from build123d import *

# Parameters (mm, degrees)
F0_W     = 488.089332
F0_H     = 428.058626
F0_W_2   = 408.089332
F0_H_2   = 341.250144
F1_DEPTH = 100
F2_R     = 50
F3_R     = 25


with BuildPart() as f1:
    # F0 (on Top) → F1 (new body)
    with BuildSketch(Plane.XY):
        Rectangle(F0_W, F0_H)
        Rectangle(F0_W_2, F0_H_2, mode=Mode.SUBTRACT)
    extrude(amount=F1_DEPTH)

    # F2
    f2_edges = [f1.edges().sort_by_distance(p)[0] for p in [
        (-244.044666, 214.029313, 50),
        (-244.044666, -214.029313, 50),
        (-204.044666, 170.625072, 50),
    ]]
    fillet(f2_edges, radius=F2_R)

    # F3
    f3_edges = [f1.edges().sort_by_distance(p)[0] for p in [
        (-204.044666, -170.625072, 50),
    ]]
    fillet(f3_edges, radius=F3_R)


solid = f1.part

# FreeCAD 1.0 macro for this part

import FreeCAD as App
import Part
import Sketcher
Q = App.Units.Quantity


def edges_at(feature, points):
    """Names of the edges that pass closest to the given points."""
    edges = feature.Shape.Edges
    near = lambda p: min(range(len(edges)), key=lambda i: edges[i].distToShape(Part.Vertex(*p))[0])
    return sorted({f"Edge{near(p) + 1}" for p in points})

doc = App.newDocument("Part")
body = doc.addObject("PartDesign::Body", "Body")

sketch1 = body.newObject("Sketcher::SketchObject", "Sketch")
sketch1.AttachmentSupport = (doc.getObject("XY_Plane"), [""])
sketch1.MapMode = "FlatFace"
sketch1.addGeometry([
    Part.LineSegment(App.Vector(-244, 214, 0), App.Vector(-244, -214, 0)),
    Part.LineSegment(App.Vector(-244, -214, 0), App.Vector(244, -214, 0)),
    Part.LineSegment(App.Vector(244, -214, 0), App.Vector(244, 214, 0)),
    Part.LineSegment(App.Vector(244, 214, 0), App.Vector(-244, 214, 0)),
    Part.LineSegment(App.Vector(204, -171, 0), App.Vector(-204, -171, 0)),
    Part.LineSegment(App.Vector(-204, -171, 0), App.Vector(-204, 171, 0)),
    Part.LineSegment(App.Vector(-204, 171, 0), App.Vector(204, 171, 0)),
    Part.LineSegment(App.Vector(204, 171, 0), App.Vector(204, -171, 0)),
], False)
sketch1.addConstraint([
    Sketcher.Constraint("Coincident", 0, 2, 1, 1),
    Sketcher.Constraint("Coincident", 1, 2, 2, 1),
    Sketcher.Constraint("Coincident", 2, 2, 3, 1),
    Sketcher.Constraint("Coincident", 3, 2, 0, 1),
    Sketcher.Constraint("Coincident", 4, 2, 5, 1),
    Sketcher.Constraint("Coincident", 5, 2, 6, 1),
    Sketcher.Constraint("Coincident", 6, 2, 7, 1),
    Sketcher.Constraint("Coincident", 7, 2, 4, 1),
    Sketcher.Constraint("Vertical", 0),
    Sketcher.Constraint("Horizontal", 1),
    Sketcher.Constraint("Vertical", 2),
    Sketcher.Constraint("Horizontal", 3),
    Sketcher.Constraint("Horizontal", 4),
    Sketcher.Constraint("Vertical", 5),
    Sketcher.Constraint("Horizontal", 6),
    Sketcher.Constraint("Vertical", 7),
    Sketcher.Constraint("Symmetric", 0, 2, 2, 2, -1, 1),
    Sketcher.Constraint("Symmetric", 4, 2, 6, 2, -1, 1),
    Sketcher.Constraint("DistanceX", 0, 2, 4, 2, Q("40 mm")),
    Sketcher.Constraint("DistanceX", 1, 1, 1, 2, Q("488.089332 mm")),
    Sketcher.Constraint("DistanceY", 0, 2, 0, 1, Q("428.058626 mm")),
    Sketcher.Constraint("DistanceY", 5, 1, 5, 2, Q("341.250144 mm")),
])
pad1 = body.newObject("PartDesign::Pad", "Pad")
pad1.Profile = sketch1
pad1.Length = 100
doc.recompute()

fillet = body.newObject("PartDesign::Fillet", "Fillet")
fillet.Base = (pad1, edges_at(pad1, [(-244.045, 214.029, 50), (-244.045, -214.029, 50), (-204.045, 170.625, 50)]))
fillet.Radius = 50
doc.recompute()

fillet2 = body.newObject("PartDesign::Fillet", "Fillet001")
fillet2.Base = (fillet, edges_at(fillet, [(-204.045, -170.625, 50)]))
fillet2.Radius = 25

doc.recompute()
